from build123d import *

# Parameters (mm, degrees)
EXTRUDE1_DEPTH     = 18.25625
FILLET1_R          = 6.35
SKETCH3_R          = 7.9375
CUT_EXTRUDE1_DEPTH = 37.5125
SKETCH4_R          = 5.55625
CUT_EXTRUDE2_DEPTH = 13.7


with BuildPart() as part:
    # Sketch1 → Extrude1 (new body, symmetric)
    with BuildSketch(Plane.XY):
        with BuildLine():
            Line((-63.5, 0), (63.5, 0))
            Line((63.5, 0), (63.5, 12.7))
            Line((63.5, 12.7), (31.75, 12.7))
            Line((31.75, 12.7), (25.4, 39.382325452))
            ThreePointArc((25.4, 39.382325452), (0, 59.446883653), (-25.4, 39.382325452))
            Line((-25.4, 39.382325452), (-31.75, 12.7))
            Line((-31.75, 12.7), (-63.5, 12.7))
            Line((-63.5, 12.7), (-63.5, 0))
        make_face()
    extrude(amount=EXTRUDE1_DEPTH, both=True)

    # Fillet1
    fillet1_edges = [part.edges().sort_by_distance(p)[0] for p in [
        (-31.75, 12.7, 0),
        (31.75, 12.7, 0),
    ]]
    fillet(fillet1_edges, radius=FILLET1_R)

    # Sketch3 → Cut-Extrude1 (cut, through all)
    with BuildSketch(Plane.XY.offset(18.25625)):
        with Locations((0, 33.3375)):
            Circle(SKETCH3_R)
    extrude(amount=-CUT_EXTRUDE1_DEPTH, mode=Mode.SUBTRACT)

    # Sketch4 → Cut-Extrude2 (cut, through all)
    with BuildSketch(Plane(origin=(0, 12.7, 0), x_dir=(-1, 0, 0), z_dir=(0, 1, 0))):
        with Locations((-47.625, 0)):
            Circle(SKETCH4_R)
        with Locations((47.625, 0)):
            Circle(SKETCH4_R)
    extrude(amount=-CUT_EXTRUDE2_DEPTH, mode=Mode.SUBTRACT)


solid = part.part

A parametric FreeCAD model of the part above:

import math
import FreeCAD as App
import Part
import Sketcher
Q = App.Units.Quantity


def edges_at(feature, points):
    """Names of the edges that pass closest to the given points."""
    edges = feature.Shape.Edges
    near = lambda p: min(range(len(edges)), key=lambda i: edges[i].distToShape(Part.Vertex(*p))[0])
    return sorted({f"Edge{near(p) + 1}" for p in points})

doc = App.newDocument("Part")
body = doc.addObject("PartDesign::Body", "Body")

# Sketch on XY plane
sketch1 = body.newObject("Sketcher::SketchObject", "Sketch")
sketch1.AttachmentSupport = (doc.getObject("XY_Plane"), [""])
sketch1.MapMode = "FlatFace"
sketch1.addGeometry([
    Part.LineSegment(App.Vector(-64, 0, 0), App.Vector(64, 0, 0)),  # 0
    Part.LineSegment(App.Vector(64, 0, 0), App.Vector(64, 13, 0)),  # 1
    Part.LineSegment(App.Vector(64, 13, 0), App.Vector(32, 13, 0)),  # 2
    Part.LineSegment(App.Vector(32, 13, 0), App.Vector(25, 39, 0)),  # 3
    Part.ArcOfCircle(Part.Circle(App.Vector(0, 33, 0), App.Vector(0, 0, 1), 26), math.radians(13), math.radians(167)),  # 4
    Part.LineSegment(App.Vector(-25, 39, 0), App.Vector(-32, 13, 0)),  # 5
    Part.LineSegment(App.Vector(-32, 13, 0), App.Vector(-64, 13, 0)),  # 6
    Part.LineSegment(App.Vector(-64, 13, 0), App.Vector(-64, 0, 0)),  # 7
], False)
sketch1.addConstraint([
    Sketcher.Constraint("Coincident", 0, 2, 1, 1),
    Sketcher.Constraint("Coincident", 1, 2, 2, 1),
    Sketcher.Constraint("Coincident", 2, 2, 3, 1),
    Sketcher.Constraint("Tangent", 3, 2, 4, 1),
    Sketcher.Constraint("Tangent", 4, 2, 5, 1),
    Sketcher.Constraint("Coincident", 5, 2, 6, 1),
    Sketcher.Constraint("Coincident", 6, 2, 7, 1),
    Sketcher.Constraint("Coincident", 7, 2, 0, 1),
    Sketcher.Constraint("Horizontal", 0),
    Sketcher.Constraint("Vertical", 1),
    Sketcher.Constraint("Horizontal", 2),
    Sketcher.Constraint("Horizontal", 6),
    Sketcher.Constraint("Vertical", 7),
    Sketcher.Constraint("Symmetric", 0, 2, 7, 2, -1, 1),
    Sketcher.Constraint("Symmetric", 3, 2, 4, 2, -2),
    Sketcher.Constraint("Horizontal", 2, 2, 5, 2),
    Sketcher.Constraint("DistanceX", 0, 1, 0, 2, Q("5 in")),
    Sketcher.Constraint("DistanceY", 1, 1, 1, 2, Q("0.5 in")),
    Sketcher.Constraint("DistanceX", -1, 1, 3, 2, Q("1 in")),
    Sketcher.Constraint("DistanceX", 2, 2, 2, 1, Q("1.25 in")),
    Sketcher.Constraint("DistanceY", -1, 1, 4, 3, Q("1.3125 in")),
])
pad1 = body.newObject("PartDesign::Pad", "Pad")
pad1.Profile = sketch1
pad1.Length = Q("1.4375 in")
pad1.Midplane = True
doc.recompute()

fillet = body.newObject("PartDesign::Fillet", "Fillet")
fillet.Base = (pad1, edges_at(pad1, [(-31.75, 12.7, 0), (31.75, 12.7, 0)]))
fillet.Radius = Q("0.25 in")

# Sketch on XY plane
sketch2 = body.newObject("Sketcher::SketchObject", "Sketch001")
sketch2.AttachmentSupport = (doc.getObject("XY_Plane"), [""])
sketch2.MapMode = "FlatFace"
sketch2.AttachmentOffset = App.Placement(App.Vector(0, 0, 0.71875 * 25.4), App.Rotation())
sketch2.addGeometry(Part.Circle(App.Vector(0, 33, 0), App.Vector(0, 0, 1), 8), False)
sketch2.addConstraint([
    Sketcher.Constraint("PointOnObject", 0, 3, -2),
    Sketcher.Constraint("Diameter", 0, Q("0.625 in")),
    Sketcher.Constraint("DistanceY", -1, 1, 0, 3, Q("1.3125 in")),
])
pocket1 = body.newObject("PartDesign::Pocket", "Pocket")
pocket1.Profile = sketch2
pocket1.Type = "ThroughAll"

# Sketch on XZ plane
sketch3 = body.newObject("Sketcher::SketchObject", "Sketch002")
sketch3.AttachmentSupport = (doc.getObject("XZ_Plane"), [""])
sketch3.MapMode = "FlatFace"
sketch3.AttachmentOffset = App.Placement(App.Vector(0, 0, -0.5 * 25.4), App.Rotation())
sketch3.addGeometry([
    Part.Circle(App.Vector(48, 0, 0), App.Vector(0, 0, 1), 6),
    Part.Circle(App.Vector(-48, 0, 0), App.Vector(0, 0, 1), 6),
], False)
sketch3.addConstraint([
    Sketcher.Constraint("Equal", 0, 1),
    Sketcher.Constraint("Symmetric", 0, 3, 1, 3, -1, 1),
    Sketcher.Constraint("PointOnObject", 0, 3, -1),
    Sketcher.Constraint("Diameter", 0, Q("0.4375 in")),
    Sketcher.Constraint("DistanceX", 1, 3, 0, 3, Q("3.75 in")),
])
pocket2 = body.newObject("PartDesign::Pocket", "Pocket001")
pocket2.Profile = sketch3
pocket2.Type = "ThroughAll"
pocket2.Reversed = True

doc.recompute()
